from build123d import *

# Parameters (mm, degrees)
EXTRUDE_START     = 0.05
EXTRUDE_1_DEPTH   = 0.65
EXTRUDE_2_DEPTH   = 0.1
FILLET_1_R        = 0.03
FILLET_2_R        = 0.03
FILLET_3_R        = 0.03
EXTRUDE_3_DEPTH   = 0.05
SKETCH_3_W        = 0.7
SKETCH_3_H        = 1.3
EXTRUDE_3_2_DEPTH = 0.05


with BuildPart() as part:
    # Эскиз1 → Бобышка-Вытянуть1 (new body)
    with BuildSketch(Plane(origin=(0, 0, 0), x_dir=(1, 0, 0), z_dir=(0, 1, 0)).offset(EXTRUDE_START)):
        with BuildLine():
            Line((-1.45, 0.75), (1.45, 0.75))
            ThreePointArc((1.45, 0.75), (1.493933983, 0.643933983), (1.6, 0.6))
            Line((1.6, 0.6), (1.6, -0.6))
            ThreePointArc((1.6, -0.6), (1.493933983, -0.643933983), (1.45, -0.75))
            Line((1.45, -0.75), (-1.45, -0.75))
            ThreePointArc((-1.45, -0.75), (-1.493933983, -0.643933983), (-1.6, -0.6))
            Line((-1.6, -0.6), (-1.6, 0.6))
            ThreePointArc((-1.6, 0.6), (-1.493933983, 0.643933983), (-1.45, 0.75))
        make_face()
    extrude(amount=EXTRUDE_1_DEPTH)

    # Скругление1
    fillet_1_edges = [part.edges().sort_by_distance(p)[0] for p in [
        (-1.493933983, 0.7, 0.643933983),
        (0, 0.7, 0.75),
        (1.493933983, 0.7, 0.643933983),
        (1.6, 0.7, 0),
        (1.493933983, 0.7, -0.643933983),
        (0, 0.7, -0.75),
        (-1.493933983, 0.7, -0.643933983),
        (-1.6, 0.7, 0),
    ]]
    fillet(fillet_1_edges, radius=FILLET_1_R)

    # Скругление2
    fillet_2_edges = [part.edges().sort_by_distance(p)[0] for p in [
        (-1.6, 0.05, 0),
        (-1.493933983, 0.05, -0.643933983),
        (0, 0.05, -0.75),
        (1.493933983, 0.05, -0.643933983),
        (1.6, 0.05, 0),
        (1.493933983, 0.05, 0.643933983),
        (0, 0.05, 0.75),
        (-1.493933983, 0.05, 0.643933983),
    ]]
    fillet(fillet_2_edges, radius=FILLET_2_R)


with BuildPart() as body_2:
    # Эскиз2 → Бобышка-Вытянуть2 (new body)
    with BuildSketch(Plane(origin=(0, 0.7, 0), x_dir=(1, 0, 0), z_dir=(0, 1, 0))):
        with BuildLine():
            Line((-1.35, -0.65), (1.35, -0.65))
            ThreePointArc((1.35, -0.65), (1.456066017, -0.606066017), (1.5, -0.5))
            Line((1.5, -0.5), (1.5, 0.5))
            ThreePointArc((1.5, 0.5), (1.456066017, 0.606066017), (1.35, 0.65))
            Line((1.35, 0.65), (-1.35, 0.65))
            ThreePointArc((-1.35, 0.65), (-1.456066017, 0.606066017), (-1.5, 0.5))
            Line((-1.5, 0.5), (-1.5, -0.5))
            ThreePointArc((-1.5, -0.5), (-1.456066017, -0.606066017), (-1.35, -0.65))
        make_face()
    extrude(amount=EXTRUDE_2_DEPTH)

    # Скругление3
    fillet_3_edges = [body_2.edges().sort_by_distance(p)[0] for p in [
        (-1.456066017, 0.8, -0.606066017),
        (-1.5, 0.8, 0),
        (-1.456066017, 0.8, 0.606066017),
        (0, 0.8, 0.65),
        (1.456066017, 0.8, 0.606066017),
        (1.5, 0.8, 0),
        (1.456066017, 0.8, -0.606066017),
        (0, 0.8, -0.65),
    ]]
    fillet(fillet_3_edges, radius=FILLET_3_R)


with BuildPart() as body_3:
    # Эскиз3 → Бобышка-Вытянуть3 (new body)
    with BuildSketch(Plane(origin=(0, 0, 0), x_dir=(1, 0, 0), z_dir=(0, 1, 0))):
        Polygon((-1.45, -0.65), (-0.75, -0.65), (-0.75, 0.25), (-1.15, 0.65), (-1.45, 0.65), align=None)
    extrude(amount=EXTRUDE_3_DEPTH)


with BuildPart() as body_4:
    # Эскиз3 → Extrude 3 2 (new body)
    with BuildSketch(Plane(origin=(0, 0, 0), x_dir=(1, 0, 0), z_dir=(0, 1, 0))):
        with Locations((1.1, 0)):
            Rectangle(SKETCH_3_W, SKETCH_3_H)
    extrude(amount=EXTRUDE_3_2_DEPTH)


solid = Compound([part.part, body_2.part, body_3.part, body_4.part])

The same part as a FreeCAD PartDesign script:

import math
import FreeCAD as App
import Part
import Sketcher

V = App.Vector
Q = App.Units.Quantity


def edges_at(feature, points):
    """Names of the edges that pass closest to the given points."""
    edges = feature.Shape.Edges
    near = lambda p: min(range(len(edges)), key=lambda i: edges[i].distToShape(Part.Vertex(*p))[0])
    return sorted({f"Edge{near(p) + 1}" for p in points})


def add_polygon(sketch, points):
    """Adds a closed chain of lines whose ends are joined by coincident constraints."""
    first, n = sketch.GeometryCount, len(points)
    for a, b in zip(points, points[1:] + points[:1]):
        sketch.addGeometry(Part.LineSegment(App.Vector(*a, 0), App.Vector(*b, 0)), False)
    for i in range(n):
        sketch.addConstraint(Sketcher.Constraint("Coincident", first + i, 2, first + (i + 1) % n, 1))

doc = App.newDocument("Part")
body = doc.addObject("PartDesign::Body", "Body")

sketch1 = doc.addObject("Sketcher::SketchObject", "Sketch")
body.addObject(sketch1)
sketch1.AttachmentSupport = (doc.XZ_Plane, [""])
sketch1.MapMode = "FlatFace"
sketch1.AttachmentOffset = App.Placement(V(0, 0, -0.05), App.Rotation())
sketch1.addGeometry([
    Part.LineSegment(V(1.45, -0.75, 0), V(-1.45, -0.75, 0)),
    Part.ArcOfCircle(Part.Circle(V(-1.6, -0.75, 0), V(0, 0, 1), 0.15), math.radians(0), math.radians(90)),
    Part.LineSegment(V(-1.6, -0.6, 0), V(-1.6, 0.6, 0)),
    Part.ArcOfCircle(Part.Circle(V(-1.6, 0.75, 0), V(0, 0, 1), 0.15), math.radians(-90), math.radians(0)),
    Part.LineSegment(V(-1.45, 0.75, 0), V(1.45, 0.75, 0)),
    Part.ArcOfCircle(Part.Circle(V(1.6, 0.75, 0), V(0, 0, 1), 0.15), math.radians(-180), math.radians(-90)),
    Part.LineSegment(V(1.6, 0.6, 0), V(1.6, -0.6, 0)),
    Part.ArcOfCircle(Part.Circle(V(1.6, -0.75, 0), V(0, 0, 1), 0.15), math.radians(90), math.radians(180)),
], False)
sketch1.addConstraint([
    Sketcher.Constraint("Coincident", 0, 2, 1, 1),
    Sketcher.Constraint("Coincident", 1, 2, 2, 1),
    Sketcher.Constraint("Coincident", 2, 2, 3, 1),
    Sketcher.Constraint("Coincident", 3, 2, 4, 1),
    Sketcher.Constraint("Coincident", 4, 2, 5, 1),
    Sketcher.Constraint("Coincident", 5, 2, 6, 1),
    Sketcher.Constraint("Coincident", 6, 2, 7, 1),
    Sketcher.Constraint("Coincident", 7, 2, 0, 1),
    Sketcher.Constraint("Horizontal", 0),
    Sketcher.Constraint("Vertical", 2),
    Sketcher.Constraint("Horizontal", 4),
    Sketcher.Constraint("Vertical", 6),
    Sketcher.Constraint("Equal", 1, 3),
    Sketcher.Constraint("Equal", 3, 5),
    Sketcher.Constraint("Equal", 5, 7),
    Sketcher.Constraint("Symmetric", 1, 3, 5, 3, -1, 1),
    Sketcher.Constraint("Symmetric", 3, 3, 7, 3, -1, 1),
    Sketcher.Constraint("Symmetric", 3, 3, 5, 3, -2),
    Sketcher.Constraint("Horizontal", 7, 3, 0, 2),
    Sketcher.Constraint("Horizontal", 5, 3, 3, 2),
    Sketcher.Constraint("Vertical", 3, 3, 1, 2),
    Sketcher.Constraint("Vertical", 7, 3, 5, 2),
    Sketcher.Constraint("Radius", 1, Q("0.15 mm")),
    Sketcher.Constraint("DistanceX", 0, 2, 0, 1, Q("2.9 mm")),
    Sketcher.Constraint("DistanceY", 2, 1, 2, 2, Q("1.2 mm")),
])
pad1 = doc.addObject("PartDesign::Pad", "Pad")
body.addObject(pad1)
pad1.Profile = sketch1
pad1.Length = 0.65
pad1.Reversed = True
doc.recompute()

fillet = doc.addObject("PartDesign::Fillet", "Fillet")
body.addObject(fillet)
fillet.Base = (pad1, edges_at(pad1, [
    (-1.494, 0.7, 0.644),
    (0, 0.7, 0.75),
    (1.494, 0.7, 0.644),
    (1.6, 0.7, 0),
    (1.494, 0.7, -0.644),
    (0, 0.7, -0.75),
    (-1.494, 0.7, -0.644),
    (-1.6, 0.7, 0),
]))
fillet.Radius = 0.03
doc.recompute()

fillet2 = doc.addObject("PartDesign::Fillet", "Fillet001")
body.addObject(fillet2)
fillet2.Base = (fillet, edges_at(fillet, [
    (-1.6, 0.05, 0),
    (-1.494, 0.05, -0.644),
    (0, 0.05, -0.75),
    (1.494, 0.05, -0.644),
    (1.6, 0.05, 0),
    (1.494, 0.05, 0.644),
    (0, 0.05, 0.75),
    (-1.494, 0.05, 0.644),
]))
fillet2.Radius = 0.03
body2 = doc.addObject("PartDesign::Body", "Body001")

sketch2 = doc.addObject("Sketcher::SketchObject", "Sketch001")
body2.addObject(sketch2)
sketch2.AttachmentSupport = (doc.getObject("XZ_Plane001"), [""])
sketch2.MapMode = "FlatFace"
sketch2.AttachmentOffset = App.Placement(V(0, 0, -0.7), App.Rotation())
sketch2.addGeometry([
    Part.LineSegment(V(-1.35, 0.65, 0), V(1.35, 0.65, 0)),
    Part.ArcOfCircle(Part.Circle(V(1.35, 0.5, 0), V(0, 0, 1), 0.15), math.radians(0), math.radians(90)),
    Part.LineSegment(V(1.5, 0.5, 0), V(1.5, -0.5, 0)),
    Part.ArcOfCircle(Part.Circle(V(1.35, -0.5, 0), V(0, 0, 1), 0.15), math.radians(-90), math.radians(0)),
    Part.LineSegment(V(1.35, -0.65, 0), V(-1.35, -0.65, 0)),
    Part.ArcOfCircle(Part.Circle(V(-1.35, -0.5, 0), V(0, 0, 1), 0.15), math.radians(-180), math.radians(-90)),
    Part.LineSegment(V(-1.5, -0.5, 0), V(-1.5, 0.5, 0)),
    Part.ArcOfCircle(Part.Circle(V(-1.35, 0.5, 0), V(0, 0, 1), 0.15), math.radians(90), math.radians(180)),
], False)
sketch2.addConstraint([
    Sketcher.Constraint("Tangent", 0, 2, 1, 2),
    Sketcher.Constraint("Tangent", 1, 1, 2, 1),
    Sketcher.Constraint("Tangent", 2, 2, 3, 2),
    Sketcher.Constraint("Tangent", 3, 1, 4, 1),
    Sketcher.Constraint("Tangent", 4, 2, 5, 2),
    Sketcher.Constraint("Tangent", 5, 1, 6, 1),
    Sketcher.Constraint("Tangent", 6, 2, 7, 2),
    Sketcher.Constraint("Tangent", 7, 1, 0, 1),
    Sketcher.Constraint("Horizontal", 0),
    Sketcher.Constraint("Vertical", 2),
    Sketcher.Constraint("Horizontal", 4),
    Sketcher.Constraint("Vertical", 6),
    Sketcher.Constraint("Equal", 1, 3),
    Sketcher.Constraint("Equal", 3, 5),
    Sketcher.Constraint("Equal", 5, 7),
    Sketcher.Constraint("Symmetric", 1, 3, 5, 3, -1, 1),
    Sketcher.Constraint("DistanceY", 2, 2, 2, 1, Q("1 mm")),
    Sketcher.Constraint("Radius", 1, Q("0.15 mm")),
    Sketcher.Constraint("DistanceX", 0, 1, 0, 2, Q("2.7 mm")),
])
pad2 = doc.addObject("PartDesign::Pad", "Pad001")
body2.addObject(pad2)
pad2.Profile = sketch2
pad2.Length = 0.1
pad2.Reversed = True
doc.recompute()

fillet3 = doc.addObject("PartDesign::Fillet", "Fillet002")
body2.addObject(fillet3)
fillet3.Base = (pad2, edges_at(pad2, [
    (-1.456, 0.8, -0.606),
    (-1.5, 0.8, 0),
    (-1.456, 0.8, 0.606),
    (0, 0.8, 0.65),
    (1.456, 0.8, 0.606),
    (1.5, 0.8, 0),
    (1.456, 0.8, -0.606),
    (0, 0.8, -0.65),
]))
fillet3.Radius = 0.03
body3 = doc.addObject("PartDesign::Body", "Body002")

sketch3 = doc.addObject("Sketcher::SketchObject", "Sketch002")
body3.addObject(sketch3)
sketch3.AttachmentSupport = (doc.getObject("XZ_Plane002"), [""])
sketch3.MapMode = "FlatFace"
add_polygon(sketch3, [(-1.45, 0.65), (-0.75, 0.65), (-0.75, -0.25), (-1.15, -0.65), (-1.45, -0.65)])
sketch3.addConstraint([
    Sketcher.Constraint("Horizontal", 0),
    Sketcher.Constraint("Vertical", 1),
    Sketcher.Constraint("Horizontal", 3),
    Sketcher.Constraint("Vertical", 4),
    Sketcher.Constraint("Angle", 2, Q("-135 deg")),
    Sketcher.Constraint("DistanceX", 0, 1, 0, 2, Q("0.7 mm")),
    Sketcher.Constraint("DistanceX", 3, 2, 3, 1, Q("0.3 mm")),
    Sketcher.Constraint("DistanceY", 1, 2, 1, 1, Q("0.9 mm")),
    Sketcher.Constraint("DistanceX", 0, 2, -1, 1, Q("0.75 mm")),
    Sketcher.Constraint("DistanceY", -1, 1, 0, 2, Q("0.65 mm")),
])
pad3 = doc.addObject("PartDesign::Pad", "Pad002")
body3.addObject(pad3)
pad3.Profile = sketch3
pad3.Length = 0.05
pad3.Reversed = True
body4 = doc.addObject("PartDesign::Body", "Body003")

sketch4 = doc.addObject("Sketcher::SketchObject", "Sketch003")
body4.addObject(sketch4)
sketch4.AttachmentSupport = (doc.getObject("XZ_Plane003"), [""])
sketch4.MapMode = "FlatFace"
add_polygon(sketch4, [(0.8, -0.7), (0.8, 0.7), (1.4, 0.7), (1.4, -0.7)])
sketch4.addConstraint([
    Sketcher.Constraint("Vertical", 0),
    Sketcher.Constraint("Horizontal", 1),
    Sketcher.Constraint("Vertical", 2),
    Sketcher.Constraint("Horizontal", 3),
    Sketcher.Constraint("DistanceX", 1, 1, 1, 2, Q("0.7 mm")),
    Sketcher.Constraint("DistanceY", 0, 1, 0, 2, Q("1.3 mm")),
    Sketcher.Constraint("DistanceX", -1, 1, 0, 2, Q("0.75 mm")),
    Sketcher.Constraint("DistanceY", -1, 1, 0, 2, Q("0.65 mm")),
])
pad4 = doc.addObject("PartDesign::Pad", "Pad003")
body4.addObject(pad4)
pad4.Profile = sketch4
pad4.Length = 0.05
pad4.Reversed = True

doc.recompute()
